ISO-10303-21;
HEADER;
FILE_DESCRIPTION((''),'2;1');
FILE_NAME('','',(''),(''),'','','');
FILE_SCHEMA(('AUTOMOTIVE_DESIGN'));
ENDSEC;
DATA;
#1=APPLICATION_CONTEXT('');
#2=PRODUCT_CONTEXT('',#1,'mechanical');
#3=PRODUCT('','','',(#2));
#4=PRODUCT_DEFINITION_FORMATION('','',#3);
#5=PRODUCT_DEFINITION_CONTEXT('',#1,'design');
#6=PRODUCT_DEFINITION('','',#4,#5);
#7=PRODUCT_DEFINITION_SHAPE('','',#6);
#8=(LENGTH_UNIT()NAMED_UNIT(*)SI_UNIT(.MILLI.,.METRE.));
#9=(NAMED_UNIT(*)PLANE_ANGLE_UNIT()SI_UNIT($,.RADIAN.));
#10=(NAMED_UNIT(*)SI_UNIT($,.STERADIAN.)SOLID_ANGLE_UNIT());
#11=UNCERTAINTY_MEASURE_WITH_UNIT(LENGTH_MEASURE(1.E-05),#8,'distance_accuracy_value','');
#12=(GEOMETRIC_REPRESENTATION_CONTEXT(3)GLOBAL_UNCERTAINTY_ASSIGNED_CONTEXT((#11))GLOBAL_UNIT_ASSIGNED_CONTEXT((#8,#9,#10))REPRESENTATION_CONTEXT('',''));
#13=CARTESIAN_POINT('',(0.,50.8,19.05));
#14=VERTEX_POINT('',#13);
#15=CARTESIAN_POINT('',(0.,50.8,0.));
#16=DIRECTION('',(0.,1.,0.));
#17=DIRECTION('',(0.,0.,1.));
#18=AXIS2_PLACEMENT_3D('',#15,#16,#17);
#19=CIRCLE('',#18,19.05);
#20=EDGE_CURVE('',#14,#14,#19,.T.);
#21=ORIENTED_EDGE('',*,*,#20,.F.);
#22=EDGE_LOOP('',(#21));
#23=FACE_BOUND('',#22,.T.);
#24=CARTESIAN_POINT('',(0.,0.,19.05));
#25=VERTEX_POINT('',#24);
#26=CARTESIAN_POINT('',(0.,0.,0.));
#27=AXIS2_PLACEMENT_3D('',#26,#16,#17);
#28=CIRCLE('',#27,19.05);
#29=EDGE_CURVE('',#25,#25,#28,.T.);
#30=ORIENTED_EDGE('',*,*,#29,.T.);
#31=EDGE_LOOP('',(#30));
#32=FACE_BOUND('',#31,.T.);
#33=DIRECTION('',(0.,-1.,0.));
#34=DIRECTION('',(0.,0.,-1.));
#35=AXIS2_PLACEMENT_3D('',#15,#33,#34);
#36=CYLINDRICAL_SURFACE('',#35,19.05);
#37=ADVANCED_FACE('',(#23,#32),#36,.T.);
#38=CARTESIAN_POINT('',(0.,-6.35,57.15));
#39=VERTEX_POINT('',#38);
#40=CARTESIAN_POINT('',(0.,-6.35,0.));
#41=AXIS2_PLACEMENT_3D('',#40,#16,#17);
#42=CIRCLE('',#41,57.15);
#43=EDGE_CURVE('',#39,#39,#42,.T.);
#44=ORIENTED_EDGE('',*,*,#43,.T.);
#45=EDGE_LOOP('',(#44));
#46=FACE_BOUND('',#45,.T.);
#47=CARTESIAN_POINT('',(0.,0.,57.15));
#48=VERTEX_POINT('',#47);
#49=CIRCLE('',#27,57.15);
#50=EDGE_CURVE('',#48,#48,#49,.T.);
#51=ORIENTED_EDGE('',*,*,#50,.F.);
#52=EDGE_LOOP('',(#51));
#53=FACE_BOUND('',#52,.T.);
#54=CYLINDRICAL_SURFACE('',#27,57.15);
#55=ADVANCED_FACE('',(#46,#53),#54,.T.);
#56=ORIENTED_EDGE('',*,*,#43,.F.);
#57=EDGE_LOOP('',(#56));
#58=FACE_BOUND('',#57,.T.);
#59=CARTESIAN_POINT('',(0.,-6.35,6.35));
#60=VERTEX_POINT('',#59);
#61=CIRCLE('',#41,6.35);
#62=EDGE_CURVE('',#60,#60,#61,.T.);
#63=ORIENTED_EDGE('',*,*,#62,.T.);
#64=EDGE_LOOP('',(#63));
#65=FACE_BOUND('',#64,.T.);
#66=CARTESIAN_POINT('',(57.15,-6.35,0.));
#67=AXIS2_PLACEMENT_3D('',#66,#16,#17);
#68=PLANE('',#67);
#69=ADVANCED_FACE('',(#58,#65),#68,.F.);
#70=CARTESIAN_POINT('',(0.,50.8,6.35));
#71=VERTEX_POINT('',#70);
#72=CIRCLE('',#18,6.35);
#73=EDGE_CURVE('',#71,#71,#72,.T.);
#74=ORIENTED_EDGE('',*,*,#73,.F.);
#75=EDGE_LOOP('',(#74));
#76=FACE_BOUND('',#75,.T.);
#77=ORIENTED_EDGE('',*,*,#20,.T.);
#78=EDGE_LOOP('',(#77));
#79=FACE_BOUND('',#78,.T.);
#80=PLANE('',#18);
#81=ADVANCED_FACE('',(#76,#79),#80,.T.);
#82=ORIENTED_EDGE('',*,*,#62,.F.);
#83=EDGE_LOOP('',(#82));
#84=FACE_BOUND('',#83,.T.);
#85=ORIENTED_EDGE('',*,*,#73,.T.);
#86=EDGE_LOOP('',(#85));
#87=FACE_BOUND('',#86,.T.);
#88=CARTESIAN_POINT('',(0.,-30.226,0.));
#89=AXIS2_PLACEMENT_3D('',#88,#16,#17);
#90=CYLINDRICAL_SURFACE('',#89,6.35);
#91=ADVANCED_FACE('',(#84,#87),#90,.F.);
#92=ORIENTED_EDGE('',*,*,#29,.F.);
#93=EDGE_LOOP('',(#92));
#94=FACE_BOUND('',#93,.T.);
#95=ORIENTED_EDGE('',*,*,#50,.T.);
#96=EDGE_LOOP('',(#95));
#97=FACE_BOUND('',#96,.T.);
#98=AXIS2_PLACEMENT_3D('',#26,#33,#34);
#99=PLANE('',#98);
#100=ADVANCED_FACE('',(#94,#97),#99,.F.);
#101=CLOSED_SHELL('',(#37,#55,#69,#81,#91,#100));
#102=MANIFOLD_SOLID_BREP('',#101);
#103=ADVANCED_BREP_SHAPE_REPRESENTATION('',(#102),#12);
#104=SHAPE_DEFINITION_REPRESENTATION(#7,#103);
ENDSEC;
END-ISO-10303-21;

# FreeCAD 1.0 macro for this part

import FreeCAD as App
import Part
import Sketcher
from FreeCAD import Vector
Q = App.Units.Quantity

doc = App.newDocument("Part")
body = doc.addObject("PartDesign::Body", "Body")

sketch1 = body.newObject("Sketcher::SketchObject", "Sketch")
sketch1.AttachmentSupport = (doc.getObject("XY_Plane"), [""])
sketch1.MapMode = "FlatFace"
sketch1.addGeometry([
    Part.LineSegment(Vector(0, 0, 0), Vector(0, -6.35, 0)),
    Part.LineSegment(Vector(0, -6.35, 0), Vector(57.15, -6.35, 0)),
    Part.LineSegment(Vector(57.15, -6.35, 0), Vector(57.15, 0, 0)),
    Part.LineSegment(Vector(57.15, 0, 0), Vector(0, 0, 0)),
], False)
sketch1.addConstraint([
    Sketcher.Constraint("Coincident", 0, 2, 1, 1),
    Sketcher.Constraint("Coincident", 1, 2, 2, 1),
    Sketcher.Constraint("Coincident", 2, 2, 3, 1),
    Sketcher.Constraint("Coincident", 3, 2, 0, 1),
    Sketcher.Constraint("Vertical", 0),
    Sketcher.Constraint("Horizontal", 1),
    Sketcher.Constraint("Vertical", 2),
    Sketcher.Constraint("Horizontal", 3),
    Sketcher.Constraint("Coincident", 3, 2, -1, 1),
    Sketcher.Constraint("DistanceX", 1, 1, 1, 2, Q("2.25 in")),
    Sketcher.Constraint("DistanceY", 0, 2, 0, 1, Q("0.25 in")),
])
revolution = body.newObject("PartDesign::Revolution", "Revolution")
revolution.Profile = sketch1
revolution.ReferenceAxis = (sketch1, ["V_Axis"])
revolution.Angle = 360

sketch2 = body.newObject("Sketcher::SketchObject", "Sketch001")
sketch2.AttachmentSupport = (doc.getObject("XZ_Plane"), [""])
sketch2.MapMode = "FlatFace"
sketch2.addGeometry(Part.Circle(Vector(0, 0, 0), Vector(0, 0, 1), 19.05), False)
sketch2.addConstraint([
    Sketcher.Constraint("Coincident", 0, 3, -1, 1),
    Sketcher.Constraint("Diameter", 0, Q("1.5 in")),
])
pad1 = body.newObject("PartDesign::Pad", "Pad")
pad1.Profile = sketch2
pad1.Length = Q("2 in")
pad1.Reversed = True

sketch3 = body.newObject("Sketcher::SketchObject", "Sketch002")
sketch3.AttachmentSupport = (doc.getObject("XZ_Plane"), [""])
sketch3.MapMode = "FlatFace"
sketch3.AttachmentOffset = App.Placement(Vector(0, 0, -2 * 25.4), App.Rotation())
sketch3.addGeometry(Part.Circle(Vector(0, 0, 0), Vector(0, 0, 1), 6.35), False)
sketch3.addConstraint([
    Sketcher.Constraint("Coincident", 0, 3, -1, 1),
    Sketcher.Constraint("Diameter", 0, Q("0.5 in")),
])
pocket1 = body.newObject("PartDesign::Pocket", "Pocket")
pocket1.Profile = sketch3
pocket1.Length = Q("3.19 in")
pocket1.Reversed = True

doc.recompute()
